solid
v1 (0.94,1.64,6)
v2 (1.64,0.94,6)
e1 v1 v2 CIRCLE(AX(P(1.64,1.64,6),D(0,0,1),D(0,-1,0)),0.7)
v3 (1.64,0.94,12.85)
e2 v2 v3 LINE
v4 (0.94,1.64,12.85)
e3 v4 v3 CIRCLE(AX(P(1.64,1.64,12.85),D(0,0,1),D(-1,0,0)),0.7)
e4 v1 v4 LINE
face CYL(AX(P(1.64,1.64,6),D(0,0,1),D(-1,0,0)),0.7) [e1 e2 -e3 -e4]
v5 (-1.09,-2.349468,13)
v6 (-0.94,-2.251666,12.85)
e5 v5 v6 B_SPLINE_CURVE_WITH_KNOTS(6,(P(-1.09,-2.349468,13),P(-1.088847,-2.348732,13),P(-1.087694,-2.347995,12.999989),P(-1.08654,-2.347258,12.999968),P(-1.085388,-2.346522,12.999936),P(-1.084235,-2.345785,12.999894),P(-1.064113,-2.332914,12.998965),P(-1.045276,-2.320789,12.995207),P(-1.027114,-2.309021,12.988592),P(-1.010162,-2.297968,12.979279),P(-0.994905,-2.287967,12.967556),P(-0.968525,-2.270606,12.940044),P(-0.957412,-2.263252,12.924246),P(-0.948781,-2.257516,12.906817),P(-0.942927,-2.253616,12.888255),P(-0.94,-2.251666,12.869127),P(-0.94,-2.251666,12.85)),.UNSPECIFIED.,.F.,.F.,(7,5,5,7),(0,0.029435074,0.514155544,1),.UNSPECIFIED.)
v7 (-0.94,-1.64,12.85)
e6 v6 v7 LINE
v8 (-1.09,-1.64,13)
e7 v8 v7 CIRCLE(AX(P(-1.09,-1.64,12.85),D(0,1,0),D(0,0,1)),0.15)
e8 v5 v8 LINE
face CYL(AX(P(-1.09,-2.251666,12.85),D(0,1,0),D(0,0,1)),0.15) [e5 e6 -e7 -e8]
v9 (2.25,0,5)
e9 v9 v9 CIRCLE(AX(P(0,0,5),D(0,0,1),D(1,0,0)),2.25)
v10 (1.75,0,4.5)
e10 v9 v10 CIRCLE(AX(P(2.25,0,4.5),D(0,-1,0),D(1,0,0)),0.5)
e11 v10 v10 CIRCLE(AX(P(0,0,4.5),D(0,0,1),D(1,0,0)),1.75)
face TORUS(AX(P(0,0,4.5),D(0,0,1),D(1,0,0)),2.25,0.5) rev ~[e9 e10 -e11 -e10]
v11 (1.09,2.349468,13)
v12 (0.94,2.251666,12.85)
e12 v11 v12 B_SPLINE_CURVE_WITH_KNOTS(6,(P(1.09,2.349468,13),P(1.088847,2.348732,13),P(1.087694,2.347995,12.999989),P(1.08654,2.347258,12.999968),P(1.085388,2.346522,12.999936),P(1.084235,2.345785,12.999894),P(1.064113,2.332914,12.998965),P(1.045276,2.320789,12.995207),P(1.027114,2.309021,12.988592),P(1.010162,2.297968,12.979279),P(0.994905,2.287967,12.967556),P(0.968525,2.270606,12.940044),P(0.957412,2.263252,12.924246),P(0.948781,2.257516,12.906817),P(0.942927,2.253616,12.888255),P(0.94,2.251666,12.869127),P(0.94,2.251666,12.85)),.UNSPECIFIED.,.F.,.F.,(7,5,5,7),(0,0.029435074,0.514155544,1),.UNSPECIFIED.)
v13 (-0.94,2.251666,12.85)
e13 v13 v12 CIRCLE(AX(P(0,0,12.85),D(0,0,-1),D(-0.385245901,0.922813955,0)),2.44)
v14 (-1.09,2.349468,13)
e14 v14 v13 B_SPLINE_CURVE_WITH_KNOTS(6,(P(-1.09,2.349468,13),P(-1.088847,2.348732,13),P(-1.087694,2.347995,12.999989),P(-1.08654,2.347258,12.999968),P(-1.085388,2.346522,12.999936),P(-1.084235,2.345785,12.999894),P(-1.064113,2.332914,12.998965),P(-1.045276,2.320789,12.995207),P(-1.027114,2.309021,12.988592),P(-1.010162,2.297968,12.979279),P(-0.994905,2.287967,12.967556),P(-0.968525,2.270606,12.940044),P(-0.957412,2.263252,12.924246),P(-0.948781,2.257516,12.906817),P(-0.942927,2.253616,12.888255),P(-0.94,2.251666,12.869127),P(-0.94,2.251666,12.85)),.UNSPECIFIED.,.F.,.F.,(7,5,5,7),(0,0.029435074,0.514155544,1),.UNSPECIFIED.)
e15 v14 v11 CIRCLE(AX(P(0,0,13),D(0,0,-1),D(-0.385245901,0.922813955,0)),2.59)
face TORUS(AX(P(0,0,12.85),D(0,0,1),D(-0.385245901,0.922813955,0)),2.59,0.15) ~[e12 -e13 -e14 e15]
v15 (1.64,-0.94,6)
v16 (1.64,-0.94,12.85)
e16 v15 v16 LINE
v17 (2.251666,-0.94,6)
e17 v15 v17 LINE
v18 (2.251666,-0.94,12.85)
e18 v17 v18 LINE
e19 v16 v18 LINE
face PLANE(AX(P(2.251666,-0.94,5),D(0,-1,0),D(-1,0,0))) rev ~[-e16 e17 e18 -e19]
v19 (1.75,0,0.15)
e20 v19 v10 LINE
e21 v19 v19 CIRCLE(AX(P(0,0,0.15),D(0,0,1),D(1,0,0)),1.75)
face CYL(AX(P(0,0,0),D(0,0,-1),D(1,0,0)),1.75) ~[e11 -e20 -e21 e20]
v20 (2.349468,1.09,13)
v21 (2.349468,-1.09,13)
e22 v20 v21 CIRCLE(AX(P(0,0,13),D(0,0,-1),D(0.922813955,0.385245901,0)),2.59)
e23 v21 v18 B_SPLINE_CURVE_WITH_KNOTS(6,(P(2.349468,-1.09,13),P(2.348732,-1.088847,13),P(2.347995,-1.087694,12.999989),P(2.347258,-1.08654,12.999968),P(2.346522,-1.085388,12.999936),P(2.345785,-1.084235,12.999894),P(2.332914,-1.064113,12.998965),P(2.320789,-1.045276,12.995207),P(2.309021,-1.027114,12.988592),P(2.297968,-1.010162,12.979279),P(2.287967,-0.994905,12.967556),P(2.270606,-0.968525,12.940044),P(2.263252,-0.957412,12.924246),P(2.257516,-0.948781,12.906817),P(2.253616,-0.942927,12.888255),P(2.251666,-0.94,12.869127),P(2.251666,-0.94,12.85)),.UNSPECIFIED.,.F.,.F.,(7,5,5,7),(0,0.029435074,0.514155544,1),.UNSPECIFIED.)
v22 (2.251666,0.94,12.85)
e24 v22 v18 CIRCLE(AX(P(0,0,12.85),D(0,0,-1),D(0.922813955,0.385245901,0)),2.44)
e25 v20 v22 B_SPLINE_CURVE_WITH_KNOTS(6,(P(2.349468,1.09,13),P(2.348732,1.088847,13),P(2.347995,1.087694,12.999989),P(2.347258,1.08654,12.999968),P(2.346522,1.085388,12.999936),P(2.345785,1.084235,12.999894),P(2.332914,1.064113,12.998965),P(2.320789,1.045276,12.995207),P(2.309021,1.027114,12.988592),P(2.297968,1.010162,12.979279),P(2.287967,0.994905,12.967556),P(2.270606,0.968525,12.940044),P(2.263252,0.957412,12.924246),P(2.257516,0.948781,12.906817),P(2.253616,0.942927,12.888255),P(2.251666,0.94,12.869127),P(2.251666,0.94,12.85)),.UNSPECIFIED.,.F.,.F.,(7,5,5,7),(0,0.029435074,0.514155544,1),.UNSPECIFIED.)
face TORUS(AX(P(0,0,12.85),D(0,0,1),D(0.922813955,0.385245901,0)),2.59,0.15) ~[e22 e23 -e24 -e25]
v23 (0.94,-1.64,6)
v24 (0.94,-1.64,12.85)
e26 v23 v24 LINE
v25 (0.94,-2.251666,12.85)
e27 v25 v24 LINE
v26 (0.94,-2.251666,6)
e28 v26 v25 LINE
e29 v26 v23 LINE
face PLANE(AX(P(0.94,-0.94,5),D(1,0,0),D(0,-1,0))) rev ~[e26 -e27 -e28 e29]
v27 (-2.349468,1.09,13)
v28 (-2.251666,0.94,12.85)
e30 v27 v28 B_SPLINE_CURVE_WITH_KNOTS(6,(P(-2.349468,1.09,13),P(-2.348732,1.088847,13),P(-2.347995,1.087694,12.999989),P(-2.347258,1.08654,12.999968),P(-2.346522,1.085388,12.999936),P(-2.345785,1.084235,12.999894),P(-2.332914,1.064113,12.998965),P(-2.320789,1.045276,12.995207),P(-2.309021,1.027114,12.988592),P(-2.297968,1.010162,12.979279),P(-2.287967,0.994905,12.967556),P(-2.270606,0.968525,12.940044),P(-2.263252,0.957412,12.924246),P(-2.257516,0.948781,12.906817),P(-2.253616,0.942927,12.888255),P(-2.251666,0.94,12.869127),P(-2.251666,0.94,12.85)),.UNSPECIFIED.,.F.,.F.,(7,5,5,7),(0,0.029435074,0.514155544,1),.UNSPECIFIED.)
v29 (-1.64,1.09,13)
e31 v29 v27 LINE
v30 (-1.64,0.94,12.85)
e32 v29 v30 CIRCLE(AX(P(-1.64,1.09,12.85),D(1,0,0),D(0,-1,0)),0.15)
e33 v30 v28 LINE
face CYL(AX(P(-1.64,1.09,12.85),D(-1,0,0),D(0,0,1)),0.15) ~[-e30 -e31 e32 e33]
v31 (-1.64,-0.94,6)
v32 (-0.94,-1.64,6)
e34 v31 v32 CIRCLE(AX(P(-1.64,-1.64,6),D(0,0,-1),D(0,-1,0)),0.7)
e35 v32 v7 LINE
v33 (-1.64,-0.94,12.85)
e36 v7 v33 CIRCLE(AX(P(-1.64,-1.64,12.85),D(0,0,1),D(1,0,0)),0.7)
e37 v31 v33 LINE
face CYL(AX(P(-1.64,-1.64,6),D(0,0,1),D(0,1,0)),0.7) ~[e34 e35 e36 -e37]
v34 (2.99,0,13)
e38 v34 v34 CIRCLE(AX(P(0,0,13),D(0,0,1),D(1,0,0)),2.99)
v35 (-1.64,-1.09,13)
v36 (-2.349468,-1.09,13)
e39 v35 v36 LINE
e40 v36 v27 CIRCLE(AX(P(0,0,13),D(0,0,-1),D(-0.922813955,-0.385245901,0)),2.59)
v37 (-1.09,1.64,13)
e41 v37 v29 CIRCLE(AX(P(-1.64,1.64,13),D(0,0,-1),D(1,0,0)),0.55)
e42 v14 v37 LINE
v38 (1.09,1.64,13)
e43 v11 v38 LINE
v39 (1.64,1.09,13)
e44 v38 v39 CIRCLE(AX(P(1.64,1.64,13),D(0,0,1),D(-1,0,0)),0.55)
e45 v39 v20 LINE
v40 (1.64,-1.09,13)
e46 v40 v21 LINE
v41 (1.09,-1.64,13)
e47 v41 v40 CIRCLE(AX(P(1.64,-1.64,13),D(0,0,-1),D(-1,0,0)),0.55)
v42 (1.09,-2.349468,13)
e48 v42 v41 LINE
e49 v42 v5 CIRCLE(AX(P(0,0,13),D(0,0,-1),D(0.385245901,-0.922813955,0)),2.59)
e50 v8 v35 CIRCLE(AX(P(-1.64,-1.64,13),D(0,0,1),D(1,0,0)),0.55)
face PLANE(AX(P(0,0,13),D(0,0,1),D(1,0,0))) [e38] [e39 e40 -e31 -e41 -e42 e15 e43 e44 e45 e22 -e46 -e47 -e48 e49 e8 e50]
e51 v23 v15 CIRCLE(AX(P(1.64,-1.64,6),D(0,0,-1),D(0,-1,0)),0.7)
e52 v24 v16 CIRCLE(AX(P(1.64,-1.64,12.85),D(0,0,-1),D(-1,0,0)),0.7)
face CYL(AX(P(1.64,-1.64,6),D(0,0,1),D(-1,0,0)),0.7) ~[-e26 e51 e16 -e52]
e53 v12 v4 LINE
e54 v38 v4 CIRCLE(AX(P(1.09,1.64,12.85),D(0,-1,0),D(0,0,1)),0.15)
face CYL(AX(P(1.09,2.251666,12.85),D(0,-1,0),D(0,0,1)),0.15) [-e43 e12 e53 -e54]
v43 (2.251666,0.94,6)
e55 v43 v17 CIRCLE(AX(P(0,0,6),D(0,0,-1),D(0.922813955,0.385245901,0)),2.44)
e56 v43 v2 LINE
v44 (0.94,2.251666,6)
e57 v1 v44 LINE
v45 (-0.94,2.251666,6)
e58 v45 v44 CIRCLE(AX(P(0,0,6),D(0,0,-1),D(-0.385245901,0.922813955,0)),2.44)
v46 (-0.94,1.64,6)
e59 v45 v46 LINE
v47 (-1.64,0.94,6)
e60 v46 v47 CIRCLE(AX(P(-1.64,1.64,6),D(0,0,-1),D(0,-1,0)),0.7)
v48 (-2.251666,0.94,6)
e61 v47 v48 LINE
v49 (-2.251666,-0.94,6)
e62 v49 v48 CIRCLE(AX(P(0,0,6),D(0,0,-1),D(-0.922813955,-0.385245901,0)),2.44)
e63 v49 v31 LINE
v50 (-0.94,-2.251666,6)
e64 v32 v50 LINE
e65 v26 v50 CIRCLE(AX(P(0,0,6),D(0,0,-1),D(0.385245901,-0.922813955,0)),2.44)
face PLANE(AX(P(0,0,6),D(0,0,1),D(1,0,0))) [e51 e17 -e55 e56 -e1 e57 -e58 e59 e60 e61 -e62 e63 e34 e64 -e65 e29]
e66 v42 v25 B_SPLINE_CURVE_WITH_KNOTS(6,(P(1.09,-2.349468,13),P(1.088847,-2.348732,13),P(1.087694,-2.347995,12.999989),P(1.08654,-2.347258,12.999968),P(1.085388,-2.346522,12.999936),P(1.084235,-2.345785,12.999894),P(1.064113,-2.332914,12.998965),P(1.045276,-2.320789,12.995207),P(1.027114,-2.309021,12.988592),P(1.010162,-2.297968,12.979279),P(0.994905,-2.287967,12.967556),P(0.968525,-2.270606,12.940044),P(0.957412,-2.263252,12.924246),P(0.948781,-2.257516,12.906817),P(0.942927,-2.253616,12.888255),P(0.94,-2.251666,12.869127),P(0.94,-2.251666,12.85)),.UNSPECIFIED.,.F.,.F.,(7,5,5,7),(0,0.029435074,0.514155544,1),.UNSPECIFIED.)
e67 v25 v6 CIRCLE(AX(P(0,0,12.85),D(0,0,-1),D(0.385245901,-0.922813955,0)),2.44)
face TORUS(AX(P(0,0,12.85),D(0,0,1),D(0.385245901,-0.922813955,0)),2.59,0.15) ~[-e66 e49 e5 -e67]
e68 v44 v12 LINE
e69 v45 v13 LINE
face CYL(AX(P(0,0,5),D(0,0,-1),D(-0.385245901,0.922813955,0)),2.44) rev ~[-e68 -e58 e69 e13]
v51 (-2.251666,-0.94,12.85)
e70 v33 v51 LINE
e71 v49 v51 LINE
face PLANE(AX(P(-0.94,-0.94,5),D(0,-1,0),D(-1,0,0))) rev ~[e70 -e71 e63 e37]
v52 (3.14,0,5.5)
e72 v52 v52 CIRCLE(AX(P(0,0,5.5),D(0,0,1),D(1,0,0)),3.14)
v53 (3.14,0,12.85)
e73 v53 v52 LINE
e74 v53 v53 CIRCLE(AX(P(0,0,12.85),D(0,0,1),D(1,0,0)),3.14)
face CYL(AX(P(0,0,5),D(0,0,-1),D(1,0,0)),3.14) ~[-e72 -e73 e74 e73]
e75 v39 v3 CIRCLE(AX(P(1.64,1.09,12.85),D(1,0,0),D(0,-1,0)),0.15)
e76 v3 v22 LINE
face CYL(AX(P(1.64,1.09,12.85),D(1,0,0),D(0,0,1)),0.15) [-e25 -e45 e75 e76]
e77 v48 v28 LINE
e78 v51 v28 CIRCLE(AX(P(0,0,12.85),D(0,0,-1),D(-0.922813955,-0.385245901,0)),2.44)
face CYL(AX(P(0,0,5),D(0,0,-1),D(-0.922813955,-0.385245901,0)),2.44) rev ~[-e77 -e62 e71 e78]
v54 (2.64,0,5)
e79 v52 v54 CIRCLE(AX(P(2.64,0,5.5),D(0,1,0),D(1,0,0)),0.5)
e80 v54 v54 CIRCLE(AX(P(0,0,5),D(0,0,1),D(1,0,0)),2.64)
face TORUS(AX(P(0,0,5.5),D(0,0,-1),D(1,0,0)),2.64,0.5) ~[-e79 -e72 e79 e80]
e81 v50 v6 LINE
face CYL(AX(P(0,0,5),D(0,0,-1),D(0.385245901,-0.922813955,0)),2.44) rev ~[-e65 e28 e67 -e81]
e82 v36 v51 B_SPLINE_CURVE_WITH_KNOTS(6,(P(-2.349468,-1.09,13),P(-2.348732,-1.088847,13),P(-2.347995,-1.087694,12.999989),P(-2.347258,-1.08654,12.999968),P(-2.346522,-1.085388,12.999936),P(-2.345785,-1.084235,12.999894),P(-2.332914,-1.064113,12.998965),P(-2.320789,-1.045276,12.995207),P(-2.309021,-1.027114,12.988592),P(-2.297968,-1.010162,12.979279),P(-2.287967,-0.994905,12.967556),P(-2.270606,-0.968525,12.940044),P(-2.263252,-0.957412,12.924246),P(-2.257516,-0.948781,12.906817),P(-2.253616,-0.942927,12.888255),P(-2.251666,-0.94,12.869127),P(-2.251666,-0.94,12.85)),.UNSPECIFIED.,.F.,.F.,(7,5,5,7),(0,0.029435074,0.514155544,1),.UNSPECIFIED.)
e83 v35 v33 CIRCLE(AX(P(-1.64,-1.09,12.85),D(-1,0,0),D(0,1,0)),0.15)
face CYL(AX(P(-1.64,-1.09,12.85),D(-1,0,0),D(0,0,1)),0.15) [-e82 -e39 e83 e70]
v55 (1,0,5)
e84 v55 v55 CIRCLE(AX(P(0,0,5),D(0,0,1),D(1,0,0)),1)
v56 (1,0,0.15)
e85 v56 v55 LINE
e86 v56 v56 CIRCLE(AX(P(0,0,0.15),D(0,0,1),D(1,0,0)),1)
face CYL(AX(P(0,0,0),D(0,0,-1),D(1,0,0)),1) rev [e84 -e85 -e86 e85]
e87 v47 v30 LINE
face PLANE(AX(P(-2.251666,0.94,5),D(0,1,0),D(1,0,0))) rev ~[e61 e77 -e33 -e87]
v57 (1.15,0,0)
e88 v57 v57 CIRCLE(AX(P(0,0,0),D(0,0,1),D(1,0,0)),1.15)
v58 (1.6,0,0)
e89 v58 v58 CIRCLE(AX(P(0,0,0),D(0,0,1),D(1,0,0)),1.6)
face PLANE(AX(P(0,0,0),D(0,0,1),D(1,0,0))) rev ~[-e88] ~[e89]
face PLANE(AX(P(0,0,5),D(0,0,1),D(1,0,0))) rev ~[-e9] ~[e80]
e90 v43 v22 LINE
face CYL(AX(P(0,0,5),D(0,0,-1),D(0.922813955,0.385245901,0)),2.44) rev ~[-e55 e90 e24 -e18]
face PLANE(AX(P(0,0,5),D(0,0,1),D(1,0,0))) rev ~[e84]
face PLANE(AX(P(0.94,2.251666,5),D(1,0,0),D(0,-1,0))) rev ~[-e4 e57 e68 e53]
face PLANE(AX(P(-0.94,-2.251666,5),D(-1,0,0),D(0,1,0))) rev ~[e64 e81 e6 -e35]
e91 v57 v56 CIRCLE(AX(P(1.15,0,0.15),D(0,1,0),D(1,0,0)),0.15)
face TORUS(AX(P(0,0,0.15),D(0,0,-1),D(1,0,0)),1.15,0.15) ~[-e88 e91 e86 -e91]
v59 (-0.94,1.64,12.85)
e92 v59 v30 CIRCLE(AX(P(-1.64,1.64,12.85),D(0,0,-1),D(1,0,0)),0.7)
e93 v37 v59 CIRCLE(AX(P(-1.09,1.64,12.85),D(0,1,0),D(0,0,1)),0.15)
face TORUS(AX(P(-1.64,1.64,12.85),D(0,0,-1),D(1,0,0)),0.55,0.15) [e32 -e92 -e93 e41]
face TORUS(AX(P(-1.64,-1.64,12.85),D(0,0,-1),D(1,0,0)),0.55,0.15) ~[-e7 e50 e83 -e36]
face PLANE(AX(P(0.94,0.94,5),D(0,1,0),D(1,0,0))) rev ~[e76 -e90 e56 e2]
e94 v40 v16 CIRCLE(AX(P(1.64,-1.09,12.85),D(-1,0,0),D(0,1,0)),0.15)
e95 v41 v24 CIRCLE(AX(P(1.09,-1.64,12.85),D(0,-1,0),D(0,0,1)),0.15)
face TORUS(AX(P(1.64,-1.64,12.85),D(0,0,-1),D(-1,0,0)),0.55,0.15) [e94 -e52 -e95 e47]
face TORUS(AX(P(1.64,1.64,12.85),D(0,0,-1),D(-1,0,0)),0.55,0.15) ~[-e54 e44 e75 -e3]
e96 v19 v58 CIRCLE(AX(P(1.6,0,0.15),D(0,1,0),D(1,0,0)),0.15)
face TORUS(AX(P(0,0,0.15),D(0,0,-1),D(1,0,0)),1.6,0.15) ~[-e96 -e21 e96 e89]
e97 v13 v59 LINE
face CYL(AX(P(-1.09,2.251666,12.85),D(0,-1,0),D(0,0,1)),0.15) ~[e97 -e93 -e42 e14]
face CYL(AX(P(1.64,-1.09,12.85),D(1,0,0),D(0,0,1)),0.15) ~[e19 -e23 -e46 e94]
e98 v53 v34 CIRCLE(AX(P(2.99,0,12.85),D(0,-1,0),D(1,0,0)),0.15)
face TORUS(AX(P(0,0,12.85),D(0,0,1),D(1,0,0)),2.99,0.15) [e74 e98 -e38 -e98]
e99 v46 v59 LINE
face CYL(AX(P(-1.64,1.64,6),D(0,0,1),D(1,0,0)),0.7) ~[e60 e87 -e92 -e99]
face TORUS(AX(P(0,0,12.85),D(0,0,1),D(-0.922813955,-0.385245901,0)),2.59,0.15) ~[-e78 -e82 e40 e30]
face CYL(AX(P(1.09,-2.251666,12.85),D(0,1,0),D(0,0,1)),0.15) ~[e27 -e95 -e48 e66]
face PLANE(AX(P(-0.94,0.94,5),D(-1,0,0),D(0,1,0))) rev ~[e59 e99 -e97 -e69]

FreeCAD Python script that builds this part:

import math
import FreeCAD as App
import Part
import Sketcher

V = App.Vector


def edges_at(feature, points):
    """Names of the edges that pass closest to the given points."""
    edges = feature.Shape.Edges
    near = lambda p: min(range(len(edges)), key=lambda i: edges[i].distToShape(Part.Vertex(*p))[0])
    return sorted({f"Edge{near(p) + 1}" for p in points})

doc = App.newDocument("Part")
params = doc.addObject("Spreadsheet::Sheet", "Params")
for row, (alias, value) in enumerate([
    ("sketch1_diameter", "2 mm"),
    ("sketch1_diameter2", "3.5 mm"),
    ("pad1_length", "5 mm"),
    ("sketch2_diameter", "6.28 mm"),
    ("pad2_length", "1 mm"),
    ("sketch3_diameter", "6.28 mm"),
    ("sketch3_radius", "2.44 mm"),
    ("pad3_length", "8 mm"),
    ("fillet_radius", "0.5 mm"),
    ("fillet2_radius", "0.7 mm"),
    ("fillet3_radius", "0.15 mm"),
    ("fillet4_radius", "0.15 mm"),
], start=1):
    params.set(f"A{row}", alias)
    params.set(f"B{row}", "=" + value)
    params.setAlias(f"B{row}", alias)

body = doc.addObject("PartDesign::Body", "Body")

# Sketch on XY plane
sketch1 = body.newObject("Sketcher::SketchObject", "Sketch")
sketch1.AttachmentSupport = (doc.getObject("XY_Plane"), [""])
sketch1.MapMode = "FlatFace"
sketch1.addGeometry([
    Part.Circle(V(0, 0, 0), V(0, 0, 1), 1.8),
    Part.Circle(V(0, 0, 0), V(0, 0, 1), 1),
], False)
sketch1.addConstraint([
    Sketcher.Constraint("Coincident", 0, 3, -1, 1),
    Sketcher.Constraint("Coincident", 1, 3, -1, 1),
    Sketcher.Constraint("Diameter", 1, 2.0),
    Sketcher.Constraint("Diameter", 0, 3.5),
])
sketch1.setExpression("Constraints[2]", "Params.sketch1_diameter")
sketch1.setExpression("Constraints[3]", "Params.sketch1_diameter2")
pad1 = body.newObject("PartDesign::Pad", "Pad")
pad1.Profile = sketch1
pad1.setExpression("Length", "Params.pad1_length")

# Sketch on XY plane
sketch2 = body.newObject("Sketcher::SketchObject", "Sketch001")
sketch2.AttachmentSupport = (doc.getObject("XY_Plane"), [""])
sketch2.MapMode = "FlatFace"
sketch2.AttachmentOffset = App.Placement(V(0, 0, 5), App.Rotation())
sketch2.addGeometry(Part.Circle(V(0, 0, 0), V(0, 0, 1), 3.1), False)
sketch2.addConstraint([
    Sketcher.Constraint("Coincident", 0, 3, -1, 1),
    Sketcher.Constraint("Diameter", 0, 6.28),
])
sketch2.setExpression("Constraints[1]", "Params.sketch2_diameter")
pad2 = body.newObject("PartDesign::Pad", "Pad001")
pad2.Profile = sketch2
pad2.setExpression("Length", "Params.pad2_length")

# Sketch on XY plane
sketch3 = body.newObject("Sketcher::SketchObject", "Sketch002")
sketch3.AttachmentSupport = (doc.getObject("XY_Plane"), [""])
sketch3.MapMode = "FlatFace"
sketch3.AttachmentOffset = App.Placement(V(0, 0, 5), App.Rotation())
sketch3.addGeometry([
    Part.Circle(V(0, 0, 0), V(0, 0, 1), 3.1),  # 0
    Part.LineSegment(V(0.9, 2.3, 0), V(0.9, 0.9, 0)),  # 1
    Part.LineSegment(V(0.9, 0.9, 0), V(2.3, 0.9, 0)),  # 2
    Part.ArcOfCircle(Part.Circle(V(0, 0, 0), V(0, 0, 1), 2.4), math.radians(-23), math.radians(23)),  # 3
    Part.LineSegment(V(2.3, -0.9, 0), V(0.9, -0.9, 0)),  # 4
    Part.LineSegment(V(0.9, -0.9, 0), V(0.9, -2.3, 0)),  # 5
    Part.ArcOfCircle(Part.Circle(V(0, 0, 0), V(0, 0, 1), 2.4), math.radians(-113), math.radians(-67)),  # 6
    Part.LineSegment(V(-0.9, -2.3, 0), V(-0.9, -0.9, 0)),  # 7
    Part.LineSegment(V(-0.9, -0.9, 0), V(-2.3, -0.9, 0)),  # 8
    Part.ArcOfCircle(Part.Circle(V(0, 0, 0), V(0, 0, 1), 2.4), math.radians(157), math.radians(203)),  # 9
    Part.LineSegment(V(-2.3, 0.9, 0), V(-0.9, 0.9, 0)),  # 10
    Part.LineSegment(V(-0.9, 0.9, 0), V(-0.9, 2.3, 0)),  # 11
    Part.ArcOfCircle(Part.Circle(V(0, 0, 0), V(0, 0, 1), 2.4), math.radians(67), math.radians(113)),  # 12
], False)
sketch3.addConstraint([
    Sketcher.Constraint("Coincident", 1, 2, 2, 1),
    Sketcher.Constraint("Coincident", 2, 2, 3, 2),
    Sketcher.Constraint("Coincident", 3, 1, 4, 1),
    Sketcher.Constraint("Coincident", 4, 2, 5, 1),
    Sketcher.Constraint("Coincident", 5, 2, 6, 2),
    Sketcher.Constraint("Coincident", 6, 1, 7, 1),
    Sketcher.Constraint("Coincident", 7, 2, 8, 1),
    Sketcher.Constraint("Coincident", 8, 2, 9, 2),
    Sketcher.Constraint("Coincident", 9, 1, 10, 1),
    Sketcher.Constraint("Coincident", 10, 2, 11, 1),
    Sketcher.Constraint("Coincident", 11, 2, 12, 2),
    Sketcher.Constraint("Coincident", 12, 1, 1, 1),
    Sketcher.Constraint("Vertical", 1),
    Sketcher.Constraint("Horizontal", 2),
    Sketcher.Constraint("Horizontal", 4),
    Sketcher.Constraint("Vertical", 5),
    Sketcher.Constraint("Vertical", 7),
    Sketcher.Constraint("Horizontal", 8),
    Sketcher.Constraint("Horizontal", 10),
    Sketcher.Constraint("Vertical", 11),
    Sketcher.Constraint("Coincident", 0, 3, -1, 1),
    Sketcher.Constraint("Coincident", 3, 3, -1, 1),
    Sketcher.Constraint("Coincident", 6, 3, -1, 1),
    Sketcher.Constraint("Coincident", 9, 3, -1, 1),
    Sketcher.Constraint("Coincident", 12, 3, -1, 1),
    Sketcher.Constraint("Equal", 3, 6),
    Sketcher.Constraint("Equal", 6, 9),
    Sketcher.Constraint("Equal", 9, 12),
    Sketcher.Constraint("Symmetric", 1, 2, 7, 2, -1, 1),
    Sketcher.Constraint("Symmetric", 4, 2, 10, 2, -1, 1),
    Sketcher.Constraint("Symmetric", 4, 2, 7, 2, -2),
    Sketcher.Constraint("Equal", 10, 1),
    Sketcher.Constraint("Diameter", 0, 6.28),
    Sketcher.Constraint("Radius", 3, 2.44),
    Sketcher.Constraint("DistanceX", -1, 1, 1, 2, 0.94),
])
sketch3.setExpression("Constraints[32]", "Params.sketch3_diameter")
sketch3.setExpression("Constraints[33]", "Params.sketch3_radius")
pad3 = body.newObject("PartDesign::Pad", "Pad002")
pad3.Profile = sketch3
pad3.setExpression("Length", "Params.pad3_length")
doc.recompute()

fillet = body.newObject("PartDesign::Fillet", "Fillet")
fillet.Base = (pad3, edges_at(pad3, [(-3.14, 0, 5), (-1.75, 0, 5)]))
fillet.setExpression("Radius", "Params.fillet_radius")
doc.recompute()

fillet2 = body.newObject("PartDesign::Fillet", "Fillet001")
fillet2.Base = (fillet, edges_at(fillet, [
    (-0.94, -0.94, 9.5),
    (-0.94, 0.94, 9.5),
    (0.94, 0.94, 9.5),
    (0.94, -0.94, 9.5),
]))
fillet2.setExpression("Radius", "Params.fillet2_radius")
doc.recompute()

fillet3 = body.newObject("PartDesign::Fillet", "Fillet002")
fillet3.Base = (fillet2, edges_at(fillet2, [(-1.75, 0, 0), (-1, 0, 0)]))
fillet3.setExpression("Radius", "Params.fillet3_radius")
doc.recompute()

fillet4 = body.newObject("PartDesign::Fillet", "Fillet003")
fillet4.Base = (fillet3, edges_at(fillet3, [
    (1.145, -1.145, 13),
    (1.145, 1.145, 13),
    (-1.145, 1.145, 13),
    (0, -2.44, 13),
    (-2.44, 0, 13),
    (2.44, 0, 13),
    (-0.94, -1.946, 13),
    (-1.946, 0.94, 13),
    (0, 2.44, 13),
    (1.946, -0.94, 13),
    (-3.14, 0, 13),
    (-0.94, 1.946, 13),
    (-1.946, -0.94, 13),
    (0.94, 1.946, 13),
    (1.946, 0.94, 13),
    (0.94, -1.946, 13),
    (-1.145, -1.145, 13),
]))
fillet4.setExpression("Radius", "Params.fillet4_radius")

doc.recompute()
